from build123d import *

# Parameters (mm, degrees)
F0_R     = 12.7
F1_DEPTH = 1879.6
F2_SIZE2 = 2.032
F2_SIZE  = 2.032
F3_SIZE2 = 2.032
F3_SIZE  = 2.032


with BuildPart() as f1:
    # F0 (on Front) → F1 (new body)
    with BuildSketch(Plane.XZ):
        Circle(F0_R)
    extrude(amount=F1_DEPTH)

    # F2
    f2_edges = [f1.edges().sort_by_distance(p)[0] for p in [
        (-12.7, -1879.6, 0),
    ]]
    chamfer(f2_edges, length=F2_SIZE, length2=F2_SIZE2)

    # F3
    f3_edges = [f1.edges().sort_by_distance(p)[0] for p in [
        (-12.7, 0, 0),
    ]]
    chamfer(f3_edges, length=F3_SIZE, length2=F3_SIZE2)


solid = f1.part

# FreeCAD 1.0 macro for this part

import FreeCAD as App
import Part
import Sketcher
Q = App.Units.Quantity


def edges_at(feature, points):
    """Names of the edges that pass closest to the given points."""
    edges = feature.Shape.Edges
    near = lambda p: min(range(len(edges)), key=lambda i: edges[i].distToShape(Part.Vertex(*p))[0])
    return sorted({f"Edge{near(p) + 1}" for p in points})

doc = App.newDocument("Part")
body = doc.addObject("PartDesign::Body", "Body")

# Sketch on XZ plane
sketch1 = doc.addObject("Sketcher::SketchObject", "Sketch")
body.addObject(sketch1)
sketch1.AttachmentSupport = (doc.XZ_Plane, [""])
sketch1.MapMode = "FlatFace"
sketch1.addGeometry(Part.Circle(App.Vector(0, 0, 0), App.Vector(0, 0, 1), 13), False)
sketch1.addConstraint(Sketcher.Constraint("Coincident", 0, 3, -1, 1))
sketch1.addConstraint(Sketcher.Constraint("Diameter", 0, Q("1 in")))
pad1 = doc.addObject("PartDesign::Pad", "Pad")
body.addObject(pad1)
pad1.Profile = sketch1
pad1.Length = Q("74 in")
doc.recompute()

chamfer = doc.addObject("PartDesign::Chamfer", "Chamfer")
body.addObject(chamfer)
chamfer.Base = (pad1, edges_at(pad1, [(-12.7, -1879.6, 0)]))
chamfer.ChamferType = "Two distances"
chamfer.Size = Q("0.08 in")
chamfer.Size2 = Q("0.08 in")
doc.recompute()

chamfer2 = doc.addObject("PartDesign::Chamfer", "Chamfer001")
body.addObject(chamfer2)
chamfer2.Base = (chamfer, edges_at(chamfer, [(-12.7, 0, 0)]))
chamfer2.ChamferType = "Two distances"
chamfer2.Size = Q("0.08 in")
chamfer2.Size2 = Q("0.08 in")

doc.recompute()
